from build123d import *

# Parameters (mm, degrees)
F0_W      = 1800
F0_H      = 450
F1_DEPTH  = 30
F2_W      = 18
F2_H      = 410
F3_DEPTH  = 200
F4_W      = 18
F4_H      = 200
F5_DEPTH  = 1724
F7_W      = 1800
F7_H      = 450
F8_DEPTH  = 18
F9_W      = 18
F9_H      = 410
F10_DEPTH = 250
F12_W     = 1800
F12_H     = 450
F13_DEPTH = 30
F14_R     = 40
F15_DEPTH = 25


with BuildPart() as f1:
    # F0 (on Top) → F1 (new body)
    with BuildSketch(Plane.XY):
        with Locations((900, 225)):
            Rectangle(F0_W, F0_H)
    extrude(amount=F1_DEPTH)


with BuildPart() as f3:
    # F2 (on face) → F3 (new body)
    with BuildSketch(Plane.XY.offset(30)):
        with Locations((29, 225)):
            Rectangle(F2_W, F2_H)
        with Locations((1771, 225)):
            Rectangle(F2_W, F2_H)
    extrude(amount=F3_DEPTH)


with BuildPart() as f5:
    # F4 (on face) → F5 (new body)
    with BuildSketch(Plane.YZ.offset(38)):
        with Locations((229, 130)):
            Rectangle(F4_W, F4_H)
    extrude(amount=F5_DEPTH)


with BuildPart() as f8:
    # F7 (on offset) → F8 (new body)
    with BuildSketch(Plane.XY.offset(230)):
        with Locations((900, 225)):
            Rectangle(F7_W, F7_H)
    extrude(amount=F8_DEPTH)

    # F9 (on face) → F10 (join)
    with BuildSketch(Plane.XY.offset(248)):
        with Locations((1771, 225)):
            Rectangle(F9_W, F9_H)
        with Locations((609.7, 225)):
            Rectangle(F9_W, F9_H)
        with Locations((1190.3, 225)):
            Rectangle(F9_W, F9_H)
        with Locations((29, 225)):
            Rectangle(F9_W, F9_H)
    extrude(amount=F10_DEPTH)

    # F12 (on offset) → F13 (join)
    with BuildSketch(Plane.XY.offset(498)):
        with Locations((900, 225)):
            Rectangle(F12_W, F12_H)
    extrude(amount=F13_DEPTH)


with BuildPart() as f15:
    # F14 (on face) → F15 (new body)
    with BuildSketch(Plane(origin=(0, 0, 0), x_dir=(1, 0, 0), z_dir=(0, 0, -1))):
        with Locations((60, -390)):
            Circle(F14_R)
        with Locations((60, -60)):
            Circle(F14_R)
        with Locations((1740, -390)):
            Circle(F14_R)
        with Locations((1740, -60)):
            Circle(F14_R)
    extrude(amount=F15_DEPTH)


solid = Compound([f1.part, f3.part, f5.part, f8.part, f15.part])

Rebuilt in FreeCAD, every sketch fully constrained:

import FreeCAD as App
import Part
import Sketcher

V = App.Vector
Q = App.Units.Quantity

doc = App.newDocument("Part")
body = doc.addObject("PartDesign::Body", "Body")

# Sketch on XY plane
sketch1 = body.newObject("Sketcher::SketchObject", "Sketch")
sketch1.AttachmentSupport = (doc.getObject("XY_Plane"), [""])
sketch1.MapMode = "FlatFace"
sketch1.addGeometry([
    Part.LineSegment(V(0, 450, 0), V(0, 0, 0)),
    Part.LineSegment(V(0, 0, 0), V(1800, 0, 0)),
    Part.LineSegment(V(1800, 0, 0), V(1800, 450, 0)),
    Part.LineSegment(V(1800, 450, 0), V(0, 450, 0)),
], False)
sketch1.addConstraint([
    Sketcher.Constraint("Coincident", 0, 2, 1, 1),
    Sketcher.Constraint("Coincident", 1, 2, 2, 1),
    Sketcher.Constraint("Coincident", 2, 2, 3, 1),
    Sketcher.Constraint("Coincident", 3, 2, 0, 1),
    Sketcher.Constraint("Vertical", 0),
    Sketcher.Constraint("Horizontal", 1),
    Sketcher.Constraint("Vertical", 2),
    Sketcher.Constraint("Horizontal", 3),
    Sketcher.Constraint("Coincident", 0, 2, -1, 1),
    Sketcher.Constraint("DistanceX", 1, 1, 1, 2, Q("1800 mm")),
    Sketcher.Constraint("DistanceY", 0, 2, 0, 1, Q("450 mm")),
])
pad1 = body.newObject("PartDesign::Pad", "Pad")
pad1.Profile = sketch1
pad1.Length = 30
body2 = doc.addObject("PartDesign::Body", "Body001")
body2.AllowCompound = True

# Sketch on XY plane
sketch2 = body2.newObject("Sketcher::SketchObject", "Sketch001")
sketch2.AttachmentSupport = (doc.getObject("XY_Plane001"), [""])
sketch2.MapMode = "FlatFace"
sketch2.AttachmentOffset = App.Placement(V(0, 0, 30), App.Rotation())
sketch2.addGeometry([
    Part.LineSegment(V(20, 430, 0), V(20, 20, 0)),  # 0
    Part.LineSegment(V(20, 20, 0), V(38, 20, 0)),  # 1
    Part.LineSegment(V(38, 20, 0), V(38, 430, 0)),  # 2
    Part.LineSegment(V(38, 430, 0), V(20, 430, 0)),  # 3
    Part.LineSegment(V(1762, 430, 0), V(1762, 20, 0)),  # 4
    Part.LineSegment(V(1762, 20, 0), V(1780, 20, 0)),  # 5
    Part.LineSegment(V(1780, 20, 0), V(1780, 430, 0)),  # 6
    Part.LineSegment(V(1780, 430, 0), V(1762, 430, 0)),  # 7
], False)
sketch2.addConstraint([
    Sketcher.Constraint("Coincident", 0, 2, 1, 1),
    Sketcher.Constraint("Coincident", 1, 2, 2, 1),
    Sketcher.Constraint("Coincident", 2, 2, 3, 1),
    Sketcher.Constraint("Coincident", 3, 2, 0, 1),
    Sketcher.Constraint("Coincident", 4, 2, 5, 1),
    Sketcher.Constraint("Coincident", 5, 2, 6, 1),
    Sketcher.Constraint("Coincident", 6, 2, 7, 1),
    Sketcher.Constraint("Coincident", 7, 2, 4, 1),
    Sketcher.Constraint("Vertical", 0),
    Sketcher.Constraint("Horizontal", 1),
    Sketcher.Constraint("Vertical", 2),
    Sketcher.Constraint("Horizontal", 3),
    Sketcher.Constraint("Vertical", 4),
    Sketcher.Constraint("Horizontal", 5),
    Sketcher.Constraint("Vertical", 6),
    Sketcher.Constraint("Horizontal", 7),
    Sketcher.Constraint("Horizontal", 1, 2, 4, 2),
    Sketcher.Constraint("Horizontal", 3, 2, 6, 2),
    Sketcher.Constraint("Equal", 3, 5),
    Sketcher.Constraint("DistanceX", 1, 1, 1, 2, Q("18 mm")),
    Sketcher.Constraint("DistanceY", 0, 2, 0, 1, Q("410 mm")),
    Sketcher.Constraint("DistanceX", -1, 1, 0, 2, Q("20 mm")),
    Sketcher.Constraint("DistanceY", -1, 1, 0, 2, Q("20 mm")),
    Sketcher.Constraint("DistanceX", -1, 1, 4, 2, Q("1762 mm")),
])
pad2 = body2.newObject("PartDesign::Pad", "Pad001")
pad2.Profile = sketch2
pad2.Length = 200
body3 = doc.addObject("PartDesign::Body", "Body002")

# Sketch on YZ plane
sketch3 = body3.newObject("Sketcher::SketchObject", "Sketch002")
sketch3.AttachmentSupport = (doc.getObject("YZ_Plane002"), [""])
sketch3.MapMode = "FlatFace"
sketch3.AttachmentOffset = App.Placement(V(0, 0, 38), App.Rotation())
sketch3.addGeometry([
    Part.LineSegment(V(220, 230, 0), V(220, 30, 0)),
    Part.LineSegment(V(220, 30, 0), V(238, 30, 0)),
    Part.LineSegment(V(238, 30, 0), V(238, 230, 0)),
    Part.LineSegment(V(238, 230, 0), V(220, 230, 0)),
], False)
sketch3.addConstraint([
    Sketcher.Constraint("Coincident", 0, 2, 1, 1),
    Sketcher.Constraint("Coincident", 1, 2, 2, 1),
    Sketcher.Constraint("Coincident", 2, 2, 3, 1),
    Sketcher.Constraint("Coincident", 3, 2, 0, 1),
    Sketcher.Constraint("Vertical", 0),
    Sketcher.Constraint("Horizontal", 1),
    Sketcher.Constraint("Vertical", 2),
    Sketcher.Constraint("Horizontal", 3),
    Sketcher.Constraint("DistanceX", 1, 1, 1, 2, Q("18 mm")),
    Sketcher.Constraint("DistanceY", 0, 2, 0, 1, Q("200 mm")),
    Sketcher.Constraint("DistanceX", -1, 1, 0, 2, Q("220 mm")),
    Sketcher.Constraint("DistanceY", -1, 1, 0, 2, Q("30 mm")),
])
pad3 = body3.newObject("PartDesign::Pad", "Pad002")
pad3.Profile = sketch3
pad3.Length = 1724
body4 = doc.addObject("PartDesign::Body", "Body003")

# Sketch on XY plane
sketch4 = body4.newObject("Sketcher::SketchObject", "Sketch003")
sketch4.AttachmentSupport = (doc.getObject("XY_Plane003"), [""])
sketch4.MapMode = "FlatFace"
sketch4.AttachmentOffset = App.Placement(V(0, 0, 230), App.Rotation())
sketch4.addGeometry([
    Part.LineSegment(V(0, 450, 0), V(0, 0, 0)),
    Part.LineSegment(V(0, 0, 0), V(1800, 0, 0)),
    Part.LineSegment(V(1800, 0, 0), V(1800, 450, 0)),
    Part.LineSegment(V(1800, 450, 0), V(0, 450, 0)),
], False)
sketch4.addConstraint([
    Sketcher.Constraint("Coincident", 0, 2, 1, 1),
    Sketcher.Constraint("Coincident", 1, 2, 2, 1),
    Sketcher.Constraint("Coincident", 2, 2, 3, 1),
    Sketcher.Constraint("Coincident", 3, 2, 0, 1),
    Sketcher.Constraint("Vertical", 0),
    Sketcher.Constraint("Horizontal", 1),
    Sketcher.Constraint("Vertical", 2),
    Sketcher.Constraint("Horizontal", 3),
    Sketcher.Constraint("Coincident", 0, 2, -1, 1),
    Sketcher.Constraint("DistanceX", 1, 1, 1, 2, Q("1800 mm")),
    Sketcher.Constraint("DistanceY", 0, 2, 0, 1, Q("450 mm")),
])
pad4 = body4.newObject("PartDesign::Pad", "Pad003")
pad4.Profile = sketch4
pad4.Length = 18

# Sketch on XY plane
sketch5 = body4.newObject("Sketcher::SketchObject", "Sketch004")
sketch5.AttachmentSupport = (doc.getObject("XY_Plane003"), [""])
sketch5.MapMode = "FlatFace"
sketch5.AttachmentOffset = App.Placement(V(0, 0, 248), App.Rotation())
sketch5.addGeometry([
    Part.LineSegment(V(1762, 430, 0), V(1762, 20, 0)),  # 0
    Part.LineSegment(V(1762, 20, 0), V(1780, 20, 0)),  # 1
    Part.LineSegment(V(1780, 20, 0), V(1780, 430, 0)),  # 2
    Part.LineSegment(V(1780, 430, 0), V(1762, 430, 0)),  # 3
    Part.LineSegment(V(600.7, 430, 0), V(600.7, 20, 0)),  # 4
    Part.LineSegment(V(600.7, 20, 0), V(618.7, 20, 0)),  # 5
    Part.LineSegment(V(618.7, 20, 0), V(618.7, 430, 0)),  # 6
    Part.LineSegment(V(618.7, 430, 0), V(600.7, 430, 0)),  # 7
    Part.LineSegment(V(1181.3, 430, 0), V(1181.3, 20, 0)),  # 8
    Part.LineSegment(V(1181.3, 20, 0), V(1199.3, 20, 0)),  # 9
    Part.LineSegment(V(1199.3, 20, 0), V(1199.3, 430, 0)),  # 10
    Part.LineSegment(V(1199.3, 430, 0), V(1181.3, 430, 0)),  # 11
    Part.LineSegment(V(20, 430, 0), V(20, 20, 0)),  # 12
    Part.LineSegment(V(20, 20, 0), V(38, 20, 0)),  # 13
    Part.LineSegment(V(38, 20, 0), V(38, 430, 0)),  # 14
    Part.LineSegment(V(38, 430, 0), V(20, 430, 0)),  # 15
], False)
sketch5.addConstraint([
    Sketcher.Constraint("Coincident", 0, 2, 1, 1),
    Sketcher.Constraint("Coincident", 1, 2, 2, 1),
    Sketcher.Constraint("Coincident", 2, 2, 3, 1),
    Sketcher.Constraint("Coincident", 3, 2, 0, 1),
    Sketcher.Constraint("Coincident", 4, 2, 5, 1),
    Sketcher.Constraint("Coincident", 5, 2, 6, 1),
    Sketcher.Constraint("Coincident", 6, 2, 7, 1),
    Sketcher.Constraint("Coincident", 7, 2, 4, 1),
    Sketcher.Constraint("Coincident", 8, 2, 9, 1),
    Sketcher.Constraint("Coincident", 9, 2, 10, 1),
    Sketcher.Constraint("Coincident", 10, 2, 11, 1),
    Sketcher.Constraint("Coincident", 11, 2, 8, 1),
    Sketcher.Constraint("Coincident", 12, 2, 13, 1),
    Sketcher.Constraint("Coincident", 13, 2, 14, 1),
    Sketcher.Constraint("Coincident", 14, 2, 15, 1),
    Sketcher.Constraint("Coincident", 15, 2, 12, 1),
    Sketcher.Constraint("Vertical", 0),
    Sketcher.Constraint("Horizontal", 1),
    Sketcher.Constraint("Vertical", 2),
    Sketcher.Constraint("Horizontal", 3),
    Sketcher.Constraint("Vertical", 4),
    Sketcher.Constraint("Horizontal", 5),
    Sketcher.Constraint("Vertical", 6),
    Sketcher.Constraint("Horizontal", 7),
    Sketcher.Constraint("Vertical", 8),
    Sketcher.Constraint("Horizontal", 9),
    Sketcher.Constraint("Vertical", 10),
    Sketcher.Constraint("Horizontal", 11),
    Sketcher.Constraint("Vertical", 12),
    Sketcher.Constraint("Horizontal", 13),
    Sketcher.Constraint("Vertical", 14),
    Sketcher.Constraint("Horizontal", 15),
    Sketcher.Constraint("Horizontal", 1, 2, 4, 2),
    Sketcher.Constraint("Horizontal", 3, 2, 6, 2),
    Sketcher.Constraint("Horizontal", 5, 2, 8, 2),
    Sketcher.Constraint("Horizontal", 7, 2, 10, 2),
    Sketcher.Constraint("Horizontal", 9, 2, 12, 2),
    Sketcher.Constraint("Horizontal", 11, 2, 14, 2),
    Sketcher.Constraint("Equal", 3, 5),
    Sketcher.Constraint("Equal", 7, 9),
    Sketcher.Constraint("Equal", 11, 13),
    Sketcher.Constraint("DistanceX", 1, 1, 1, 2, Q("18 mm")),
    Sketcher.Constraint("DistanceY", 0, 2, 0, 1, Q("410 mm")),
    Sketcher.Constraint("DistanceX", -1, 1, 0, 2, Q("1762 mm")),
    Sketcher.Constraint("DistanceY", -1, 1, 0, 2, Q("20 mm")),
    Sketcher.Constraint("DistanceX", -1, 1, 12, 2, Q("20 mm")),
    Sketcher.Constraint("DistanceX", -1, 1, 4, 2, Q("600.7 mm")),
    Sketcher.Constraint("DistanceX", -1, 1, 8, 2, Q("1181.3 mm")),
])
pad5 = body4.newObject("PartDesign::Pad", "Pad004")
pad5.Profile = sketch5
pad5.Length = 250

# Sketch on XY plane
sketch6 = body4.newObject("Sketcher::SketchObject", "Sketch005")
sketch6.AttachmentSupport = (doc.getObject("XY_Plane003"), [""])
sketch6.MapMode = "FlatFace"
sketch6.AttachmentOffset = App.Placement(V(0, 0, 498), App.Rotation())
sketch6.addGeometry([
    Part.LineSegment(V(0, 450, 0), V(0, 0, 0)),
    Part.LineSegment(V(0, 0, 0), V(1800, 0, 0)),
    Part.LineSegment(V(1800, 0, 0), V(1800, 450, 0)),
    Part.LineSegment(V(1800, 450, 0), V(0, 450, 0)),
], False)
sketch6.addConstraint([
    Sketcher.Constraint("Coincident", 0, 2, 1, 1),
    Sketcher.Constraint("Coincident", 1, 2, 2, 1),
    Sketcher.Constraint("Coincident", 2, 2, 3, 1),
    Sketcher.Constraint("Coincident", 3, 2, 0, 1),
    Sketcher.Constraint("Vertical", 0),
    Sketcher.Constraint("Horizontal", 1),
    Sketcher.Constraint("Vertical", 2),
    Sketcher.Constraint("Horizontal", 3),
    Sketcher.Constraint("Coincident", 0, 2, -1, 1),
    Sketcher.Constraint("DistanceX", 1, 1, 1, 2, Q("1800 mm")),
    Sketcher.Constraint("DistanceY", 0, 2, 0, 1, Q("450 mm")),
])
pad6 = body4.newObject("PartDesign::Pad", "Pad005")
pad6.Profile = sketch6
pad6.Length = 30
body5 = doc.addObject("PartDesign::Body", "Body004")
body5.AllowCompound = True

# Sketch on XY plane
sketch7 = body5.newObject("Sketcher::SketchObject", "Sketch006")
sketch7.AttachmentSupport = (doc.getObject("XY_Plane004"), [""])
sketch7.MapMode = "FlatFace"
sketch7.addGeometry([
    Part.Circle(V(60, 390, 0), V(0, 0, 1), 40),
    Part.Circle(V(60, 60, 0), V(0, 0, 1), 40),
    Part.Circle(V(1740, 390, 0), V(0, 0, 1), 40),
    Part.Circle(V(1740, 60, 0), V(0, 0, 1), 40),
], False)
sketch7.addConstraint([
    Sketcher.Constraint("Equal", 0, 1),
    Sketcher.Constraint("Equal", 1, 2),
    Sketcher.Constraint("Equal", 2, 3),
    Sketcher.Constraint("Horizontal", 0, 3, 2, 3),
    Sketcher.Constraint("Horizontal", 1, 3, 3, 3),
    Sketcher.Constraint("Vertical", 0, 3, 1, 3),
    Sketcher.Constraint("Vertical", 2, 3, 3, 3),
    Sketcher.Constraint("Diameter", 0, Q("80 mm")),
    Sketcher.Constraint("DistanceX", -1, 1, 0, 3, Q("60 mm")),
    Sketcher.Constraint("DistanceY", -1, 1, 0, 3, Q("390 mm")),
    Sketcher.Constraint("DistanceY", -1, 1, 1, 3, Q("60 mm")),
    Sketcher.Constraint("DistanceX", -1, 1, 2, 3, Q("1740 mm")),
])
pad7 = body5.newObject("PartDesign::Pad", "Pad006")
pad7.Profile = sketch7
pad7.Length = 25
pad7.Reversed = True

doc.recompute()
